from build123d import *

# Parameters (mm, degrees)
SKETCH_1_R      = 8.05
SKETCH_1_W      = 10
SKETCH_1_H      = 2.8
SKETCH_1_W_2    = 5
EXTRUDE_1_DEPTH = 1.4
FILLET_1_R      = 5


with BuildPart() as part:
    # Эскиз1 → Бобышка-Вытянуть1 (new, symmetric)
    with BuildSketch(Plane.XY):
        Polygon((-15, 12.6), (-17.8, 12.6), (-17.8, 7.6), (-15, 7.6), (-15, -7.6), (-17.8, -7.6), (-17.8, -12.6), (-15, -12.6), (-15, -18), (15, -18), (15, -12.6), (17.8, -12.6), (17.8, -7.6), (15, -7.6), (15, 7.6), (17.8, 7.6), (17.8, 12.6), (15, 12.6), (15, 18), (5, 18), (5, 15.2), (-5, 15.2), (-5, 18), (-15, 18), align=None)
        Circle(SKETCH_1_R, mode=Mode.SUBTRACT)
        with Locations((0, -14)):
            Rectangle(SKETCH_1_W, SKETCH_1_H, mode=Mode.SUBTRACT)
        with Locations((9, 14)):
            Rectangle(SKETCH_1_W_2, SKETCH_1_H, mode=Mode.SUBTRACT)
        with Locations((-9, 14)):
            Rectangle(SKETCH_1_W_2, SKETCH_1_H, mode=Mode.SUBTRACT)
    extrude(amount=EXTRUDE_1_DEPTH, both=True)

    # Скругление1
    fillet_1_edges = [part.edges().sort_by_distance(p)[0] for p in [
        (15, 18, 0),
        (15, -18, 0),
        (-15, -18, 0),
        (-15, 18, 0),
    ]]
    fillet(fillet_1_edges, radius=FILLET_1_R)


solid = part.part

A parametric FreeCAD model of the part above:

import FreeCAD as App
import Part
import Sketcher


def edges_at(feature, points):
    """Names of the edges that pass closest to the given points."""
    edges = feature.Shape.Edges
    near = lambda p: min(range(len(edges)), key=lambda i: edges[i].distToShape(Part.Vertex(*p))[0])
    return sorted({f"Edge{near(p) + 1}" for p in points})


def add_polygon(sketch, points):
    """Adds a closed chain of lines whose ends are joined by coincident constraints."""
    first, n = sketch.GeometryCount, len(points)
    for a, b in zip(points, points[1:] + points[:1]):
        sketch.addGeometry(Part.LineSegment(App.Vector(*a, 0), App.Vector(*b, 0)), False)
    for i in range(n):
        sketch.addConstraint(Sketcher.Constraint("Coincident", first + i, 2, first + (i + 1) % n, 1))

doc = App.newDocument("Part")
body = doc.addObject("PartDesign::Body", "Body")

sketch1 = body.newObject("Sketcher::SketchObject", "Sketch")
sketch1.AttachmentSupport = (doc.getObject("XY_Plane"), [""])
sketch1.MapMode = "FlatFace"
add_polygon(sketch1, [(-15, 12.6), (-17.8, 12.6), (-17.8, 7.6), (-15, 7.6), (-15, -7.6), (-17.8, -7.6), (-17.8, -12.6), (-15, -12.6), (-15, -18), (15, -18), (15, -12.6), (17.8, -12.6), (17.8, -7.6), (15, -7.6), (15, 7.6), (17.8, 7.6), (17.8, 12.6), (15, 12.6), (15, 18), (5, 18), (5, 15.2), (-5, 15.2), (-5, 18), (-15, 18)])
add_polygon(sketch1, [(5, -15.4), (-5, -15.4), (-5, -12.6), (5, -12.6)])
sketch1.addGeometry(Part.Circle(App.Vector(0, 0, 0), App.Vector(0, 0, 1), 8.1), False)
add_polygon(sketch1, [(-6.5, 12.6), (-11.5, 12.6), (-11.5, 15.4), (-6.5, 15.4)])
add_polygon(sketch1, [(11.5, 12.6), (6.5, 12.6), (6.5, 15.4), (11.5, 15.4)])
sketch1.addConstraint([
    Sketcher.Constraint("Horizontal", 0),
    Sketcher.Constraint("Vertical", 1),
    Sketcher.Constraint("Horizontal", 2),
    Sketcher.Constraint("Vertical", 3),
    Sketcher.Constraint("Horizontal", 4),
    Sketcher.Constraint("Vertical", 5),
    Sketcher.Constraint("Horizontal", 6),
    Sketcher.Constraint("Vertical", 7),
    Sketcher.Constraint("Horizontal", 8),
    Sketcher.Constraint("Vertical", 9),
    Sketcher.Constraint("Horizontal", 10),
    Sketcher.Constraint("Vertical", 11),
    Sketcher.Constraint("Horizontal", 12),
    Sketcher.Constraint("Vertical", 13),
    Sketcher.Constraint("Horizontal", 14),
    Sketcher.Constraint("Vertical", 15),
    Sketcher.Constraint("Horizontal", 16),
    Sketcher.Constraint("Vertical", 17),
    Sketcher.Constraint("Horizontal", 18),
    Sketcher.Constraint("Vertical", 19),
    Sketcher.Constraint("Horizontal", 20),
    Sketcher.Constraint("Vertical", 21),
    Sketcher.Constraint("Horizontal", 22),
    Sketcher.Constraint("Vertical", 23),
    Sketcher.Constraint("Horizontal", 24),
    Sketcher.Constraint("Vertical", 25),
    Sketcher.Constraint("Horizontal", 26),
    Sketcher.Constraint("Vertical", 27),
    Sketcher.Constraint("Horizontal", 29),
    Sketcher.Constraint("Vertical", 30),
    Sketcher.Constraint("Horizontal", 31),
    Sketcher.Constraint("Vertical", 32),
    Sketcher.Constraint("Horizontal", 33),
    Sketcher.Constraint("Vertical", 34),
    Sketcher.Constraint("Horizontal", 35),
    Sketcher.Constraint("Vertical", 36),
    Sketcher.Constraint("Coincident", 28, 3, -1, 1),
    Sketcher.Constraint("Symmetric", 0, 2, 10, 2, -1, 1),
    Sketcher.Constraint("Symmetric", 2, 2, 12, 2, -1, 1),
    Sketcher.Constraint("Symmetric", 4, 2, 14, 2, -1, 1),
    Sketcher.Constraint("Symmetric", 6, 2, 16, 2, -1, 1),
    Sketcher.Constraint("Symmetric", 8, 2, 22, 2, -1, 1),
    Sketcher.Constraint("Symmetric", 6, 2, 9, 2, -2),
    Sketcher.Constraint("Symmetric", 4, 2, 11, 2, -2),
    Sketcher.Constraint("Symmetric", 18, 2, 21, 2, -2),
    Sketcher.Constraint("Symmetric", 32, 2, 33, 2, -2),
    Sketcher.Constraint("Symmetric", 30, 2, 35, 2, -2),
    Sketcher.Constraint("Horizontal", 10, 2, 25, 2),
    Sketcher.Constraint("Horizontal", 23, 2, 29, 2),
    Sketcher.Constraint("Vertical", 3, 2, 6, 2),
    Sketcher.Constraint("Vertical", 21, 2, 24, 2),
    Sketcher.Constraint("Vertical", 19, 2, 26, 2),
    Sketcher.Constraint("Equal", 18, 20),
    Sketcher.Constraint("Equal", 35, 1),
    Sketcher.Constraint("Equal", 16, 19),
    Sketcher.Constraint("Equal", 21, 25),
    Sketcher.Constraint("Equal", 27, 30),
    Sketcher.Constraint("Diameter", 28, 16.1),
    Sketcher.Constraint("DistanceX", 8, 1, 8, 2, 30.0),
    Sketcher.Constraint("DistanceX", 29, 2, 29, 1, 5.0),
    Sketcher.Constraint("DistanceX", 0, 2, 0, 1, 2.8),
    Sketcher.Constraint("DistanceY", 3, 2, 3, 1, 15.2),
    Sketcher.Constraint("DistanceY", 7, 2, 7, 1, 5.4),
    Sketcher.Constraint("DistanceX", 29, 2, -1, 1, 11.5),
])
pad1 = body.newObject("PartDesign::Pad", "Pad")
pad1.Profile = sketch1
pad1.Length = 2.8
pad1.Midplane = True
doc.recompute()

fillet = body.newObject("PartDesign::Fillet", "Fillet")
fillet.Base = (pad1, edges_at(pad1, [
    (15, 18, 0),
    (15, -18, 0),
    (-15, -18, 0),
    (-15, 18, 0),
]))
fillet.Radius = 5

doc.recompute()
